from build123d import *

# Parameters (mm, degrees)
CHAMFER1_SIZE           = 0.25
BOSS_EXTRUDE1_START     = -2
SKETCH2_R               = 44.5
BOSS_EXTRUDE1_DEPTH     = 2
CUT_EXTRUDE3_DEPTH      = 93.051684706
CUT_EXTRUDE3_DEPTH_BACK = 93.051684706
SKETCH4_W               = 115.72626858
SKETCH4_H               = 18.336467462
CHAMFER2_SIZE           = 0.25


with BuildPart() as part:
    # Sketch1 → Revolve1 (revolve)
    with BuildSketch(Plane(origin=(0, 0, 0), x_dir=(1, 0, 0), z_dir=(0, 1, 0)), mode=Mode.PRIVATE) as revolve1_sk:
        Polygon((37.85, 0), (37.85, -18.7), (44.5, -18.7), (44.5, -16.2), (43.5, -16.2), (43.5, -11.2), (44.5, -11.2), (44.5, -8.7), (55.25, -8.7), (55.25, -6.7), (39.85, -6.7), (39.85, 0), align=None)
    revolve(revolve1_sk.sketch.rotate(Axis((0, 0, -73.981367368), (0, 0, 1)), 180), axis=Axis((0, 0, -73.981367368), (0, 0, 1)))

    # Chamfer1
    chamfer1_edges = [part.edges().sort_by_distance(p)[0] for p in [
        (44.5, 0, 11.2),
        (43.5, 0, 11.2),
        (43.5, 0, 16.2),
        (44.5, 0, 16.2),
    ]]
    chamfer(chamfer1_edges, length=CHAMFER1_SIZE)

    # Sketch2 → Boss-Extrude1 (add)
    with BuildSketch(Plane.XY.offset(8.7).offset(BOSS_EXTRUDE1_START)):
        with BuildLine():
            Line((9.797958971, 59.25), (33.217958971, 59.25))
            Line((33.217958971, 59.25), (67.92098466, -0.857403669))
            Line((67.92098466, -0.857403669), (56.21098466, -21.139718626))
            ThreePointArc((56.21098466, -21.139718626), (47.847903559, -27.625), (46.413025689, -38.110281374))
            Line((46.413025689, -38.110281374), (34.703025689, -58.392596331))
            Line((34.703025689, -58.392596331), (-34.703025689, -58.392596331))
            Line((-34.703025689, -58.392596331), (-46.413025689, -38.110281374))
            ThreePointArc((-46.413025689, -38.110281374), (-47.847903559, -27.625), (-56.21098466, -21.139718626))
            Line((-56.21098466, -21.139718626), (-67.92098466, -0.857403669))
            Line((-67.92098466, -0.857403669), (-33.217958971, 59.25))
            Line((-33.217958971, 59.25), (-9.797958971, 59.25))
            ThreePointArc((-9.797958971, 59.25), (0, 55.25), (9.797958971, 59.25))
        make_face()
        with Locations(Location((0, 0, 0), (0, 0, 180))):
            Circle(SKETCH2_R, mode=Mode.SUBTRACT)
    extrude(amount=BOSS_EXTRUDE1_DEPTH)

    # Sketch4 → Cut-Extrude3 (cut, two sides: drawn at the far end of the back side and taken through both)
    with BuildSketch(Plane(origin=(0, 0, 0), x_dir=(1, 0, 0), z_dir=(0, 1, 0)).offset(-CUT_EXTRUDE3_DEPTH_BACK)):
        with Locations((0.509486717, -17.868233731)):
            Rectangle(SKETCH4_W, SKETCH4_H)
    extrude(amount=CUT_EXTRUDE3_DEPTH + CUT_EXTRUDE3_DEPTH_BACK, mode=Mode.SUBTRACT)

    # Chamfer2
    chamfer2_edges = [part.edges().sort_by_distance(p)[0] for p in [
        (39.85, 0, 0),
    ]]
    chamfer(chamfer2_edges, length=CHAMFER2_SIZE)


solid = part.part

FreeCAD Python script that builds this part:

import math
import FreeCAD as App
import Part
import Sketcher
from FreeCAD import Vector
Q = App.Units.Quantity


def edges_at(feature, points):
    """Names of the edges that pass closest to the given points."""
    edges = feature.Shape.Edges
    near = lambda p: min(range(len(edges)), key=lambda i: edges[i].distToShape(Part.Vertex(*p))[0])
    return sorted({f"Edge{near(p) + 1}" for p in points})


def add_polygon(sketch, points):
    """Adds a closed chain of lines whose ends are joined by coincident constraints."""
    first, n = sketch.GeometryCount, len(points)
    for a, b in zip(points, points[1:] + points[:1]):
        sketch.addGeometry(Part.LineSegment(App.Vector(*a, 0), App.Vector(*b, 0)), False)
    for i in range(n):
        sketch.addConstraint(Sketcher.Constraint("Coincident", first + i, 2, first + (i + 1) % n, 1))

doc = App.newDocument("Part")
body = doc.addObject("PartDesign::Body", "Body")

sketch1 = body.newObject("Sketcher::SketchObject", "Sketch")
sketch1.AttachmentSupport = (doc.getObject("XZ_Plane"), [""])
sketch1.MapMode = "FlatFace"
add_polygon(sketch1, [(37.85, 0), (37.85, 18.7), (44.5, 18.7), (44.5, 16.2), (43.5, 16.2), (43.5, 11.2), (44.5, 11.2), (44.5, 8.7), (55.25, 8.7), (55.25, 6.7), (39.85, 6.7), (39.85, 0)])
sketch1.addConstraint(Sketcher.Constraint("Vertical", 0))
sketch1.addConstraint(Sketcher.Constraint("Horizontal", 1))
sketch1.addConstraint(Sketcher.Constraint("Vertical", 2))
sketch1.addConstraint(Sketcher.Constraint("Horizontal", 3))
sketch1.addConstraint(Sketcher.Constraint("Vertical", 4))
sketch1.addConstraint(Sketcher.Constraint("Horizontal", 5))
sketch1.addConstraint(Sketcher.Constraint("Vertical", 6))
sketch1.addConstraint(Sketcher.Constraint("Horizontal", 7))
sketch1.addConstraint(Sketcher.Constraint("Vertical", 8))
sketch1.addConstraint(Sketcher.Constraint("Horizontal", 9))
sketch1.addConstraint(Sketcher.Constraint("Vertical", 10))
sketch1.addConstraint(Sketcher.Constraint("Horizontal", 11))
sketch1.addConstraint(Sketcher.Constraint("PointOnObject", 10, 2, -1))
sketch1.addConstraint(Sketcher.Constraint("Vertical", 2, 2, 5, 2))
sketch1.addConstraint(Sketcher.Constraint("Equal", 2, 6))
sketch1.addConstraint(Sketcher.Constraint("Equal", 11, 8))
sketch1.addConstraint(Sketcher.Constraint("DistanceX", 3, 2, 3, 1, Q("1 mm")))
sketch1.addConstraint(Sketcher.Constraint("DistanceX", 11, 2, 11, 1, Q("2 mm")))
sketch1.addConstraint(Sketcher.Constraint("DistanceY", 4, 2, 4, 1, Q("5 mm")))
sketch1.addConstraint(Sketcher.Constraint("DistanceX", 9, 2, 9, 1, Q("15.4 mm")))
sketch1.addConstraint(Sketcher.Constraint("DistanceY", 0, 1, 0, 2, Q("18.7 mm")))
sketch1.addConstraint(Sketcher.Constraint("DistanceY", 2, 2, 2, 1, Q("2.5 mm")))
sketch1.addConstraint(Sketcher.Constraint("DistanceX", 1, 1, 1, 2, Q("6.65 mm")))
sketch1.addConstraint(Sketcher.Constraint("DistanceX", -1, 1, 1, 2, Q("44.5 mm")))
revolution = body.newObject("PartDesign::Revolution", "Revolution")
revolution.Profile = sketch1
revolution.ReferenceAxis = (sketch1, ["V_Axis"])
revolution.Angle = 360
doc.recompute()

chamfer = body.newObject("PartDesign::Chamfer", "Chamfer")
chamfer.Base = (revolution, edges_at(revolution, [
    (44.5, 0, 11.2),
    (43.5, 0, 11.2),
    (43.5, 0, 16.2),
    (44.5, 0, 16.2),
]))
chamfer.Size = 0.25

sketch2 = body.newObject("Sketcher::SketchObject", "Sketch001")
sketch2.AttachmentSupport = (doc.getObject("XY_Plane"), [""])
sketch2.MapMode = "FlatFace"
sketch2.AttachmentOffset = App.Placement(Vector(0, 0, 6.7), App.Rotation())
sketch2.addGeometry(Part.LineSegment(Vector(33.217959, 59.25, 0), Vector(9.797959, 59.25, 0)), False)
sketch2.addGeometry(Part.ArcOfCircle(Part.Circle(Vector(0, 69.25, 0), Vector(0, 0, 1), 14), math.radians(-134.415309), math.radians(-45.584691)), False)
sketch2.addGeometry(Part.LineSegment(Vector(-9.797959, 59.25, 0), Vector(-33.217959, 59.25, 0)), False)
sketch2.addGeometry(Part.LineSegment(Vector(-33.217959, 59.25, 0), Vector(-67.920985, -0.857404, 0)), False)
sketch2.addGeometry(Part.LineSegment(Vector(-67.920985, -0.857404, 0), Vector(-56.210985, -21.139719, 0)), False)
sketch2.addGeometry(Part.ArcOfCircle(Part.Circle(Vector(-59.972259, -34.625, 0), Vector(0, 0, 1), 14), math.radians(-14.415309), math.radians(74.415309)), False)
sketch2.addGeometry(Part.LineSegment(Vector(-46.413026, -38.110281, 0), Vector(-34.703026, -58.392596, 0)), False)
sketch2.addGeometry(Part.LineSegment(Vector(-34.703026, -58.392596, 0), Vector(34.703026, -58.392596, 0)), False)
sketch2.addGeometry(Part.LineSegment(Vector(34.703026, -58.392596, 0), Vector(46.413026, -38.110281, 0)), False)
sketch2.addGeometry(Part.ArcOfCircle(Part.Circle(Vector(59.972259, -34.625, 0), Vector(0, 0, 1), 14), math.radians(105.584691), math.radians(194.415309)), False)
sketch2.addGeometry(Part.LineSegment(Vector(56.210985, -21.139719, 0), Vector(67.920985, -0.857404, 0)), False)
sketch2.addGeometry(Part.LineSegment(Vector(67.920985, -0.857404, 0), Vector(33.217959, 59.25, 0)), False)
sketch2.addGeometry(Part.Circle(Vector(0, 0, 0), Vector(0, 0, 1), 44.5), False)
sketch2.addConstraint(Sketcher.Constraint("Coincident", 0, 2, 1, 2))
sketch2.addConstraint(Sketcher.Constraint("Coincident", 1, 1, 2, 1))
sketch2.addConstraint(Sketcher.Constraint("Coincident", 2, 2, 3, 1))
sketch2.addConstraint(Sketcher.Constraint("Coincident", 3, 2, 4, 1))
sketch2.addConstraint(Sketcher.Constraint("Coincident", 4, 2, 5, 2))
sketch2.addConstraint(Sketcher.Constraint("Coincident", 5, 1, 6, 1))
sketch2.addConstraint(Sketcher.Constraint("Coincident", 6, 2, 7, 1))
sketch2.addConstraint(Sketcher.Constraint("Coincident", 7, 2, 8, 1))
sketch2.addConstraint(Sketcher.Constraint("Coincident", 8, 2, 9, 2))
sketch2.addConstraint(Sketcher.Constraint("Coincident", 9, 1, 10, 1))
sketch2.addConstraint(Sketcher.Constraint("Coincident", 10, 2, 11, 1))
sketch2.addConstraint(Sketcher.Constraint("Coincident", 11, 2, 0, 1))
sketch2.addConstraint(Sketcher.Constraint("Horizontal", 0))
sketch2.addConstraint(Sketcher.Constraint("Horizontal", 2))
sketch2.addConstraint(Sketcher.Constraint("Horizontal", 7))
sketch2.addConstraint(Sketcher.Constraint("Coincident", 12, 3, -1, 1))
sketch2.addConstraint(Sketcher.Constraint("Equal", 1, 5))
sketch2.addConstraint(Sketcher.Constraint("Equal", 5, 9))
sketch2.addConstraint(Sketcher.Constraint("Symmetric", 5, 3, 9, 3, -2))
sketch2.addConstraint(Sketcher.Constraint("Symmetric", 0, 2, 1, 1, -2))
sketch2.addConstraint(Sketcher.Constraint("Symmetric", 3, 2, 10, 2, -2))
sketch2.addConstraint(Sketcher.Constraint("Parallel", 4, 6))
sketch2.addConstraint(Sketcher.Constraint("Parallel", 3, 8))
sketch2.addConstraint(Sketcher.Constraint("Parallel", 8, 10))
sketch2.addConstraint(Sketcher.Constraint("Parallel", 6, 11))
sketch2.addConstraint(Sketcher.Constraint("Horizontal", 5, 1, 8, 2))
sketch2.addConstraint(Sketcher.Constraint("Horizontal", 4, 2, 9, 1))
sketch2.addConstraint(Sketcher.Constraint("Equal", 4, 6))
sketch2.addConstraint(Sketcher.Constraint("Diameter", 12, Q("89 mm")))
sketch2.addConstraint(Sketcher.Constraint("Radius", 1, Q("14 mm")))
sketch2.addConstraint(Sketcher.Constraint("Angle", 3, Q("-120 deg")))
sketch2.addConstraint(Sketcher.Constraint("DistanceY", 0, 2, 1, 3, Q("10 mm")))
sketch2.addConstraint(Sketcher.Constraint("DistanceX", 0, 2, 0, 1, Q("23.42 mm")))
sketch2.addConstraint(Sketcher.Constraint("Distance", 4, Q("23.42 mm")))
sketch2.addConstraint(Sketcher.Constraint("DistanceY", -1, 1, 1, 3, Q("69.25 mm")))
sketch2.addConstraint(Sketcher.Constraint("DistanceY", 5, 3, -1, 1, Q("34.625 mm")))
sketch2.addConstraint(Sketcher.Constraint("DistanceX", 7, 1, 7, 2, Q("69.406051 mm")))
sketch2.addConstraint(Sketcher.Constraint("DistanceX", 0, 2, 9, 3, Q("50.1743 mm")))
pad1 = body.newObject("PartDesign::Pad", "Pad")
pad1.Profile = sketch2
pad1.Length = 2

sketch3 = body.newObject("Sketcher::SketchObject", "Sketch002")
sketch3.AttachmentSupport = (doc.getObject("XZ_Plane"), [""])
sketch3.MapMode = "FlatFace"
add_polygon(sketch3, [(-57.353648, 8.7), (-57.353648, 27.036467), (58.372621, 27.036467), (58.372621, 8.7)])
sketch3.addConstraint(Sketcher.Constraint("Vertical", 0))
sketch3.addConstraint(Sketcher.Constraint("Horizontal", 1))
sketch3.addConstraint(Sketcher.Constraint("Vertical", 2))
sketch3.addConstraint(Sketcher.Constraint("Horizontal", 3))
sketch3.addConstraint(Sketcher.Constraint("DistanceY", -1, 1, 2, 2, Q("8.7 mm")))
sketch3.addConstraint(Sketcher.Constraint("DistanceX", 1, 1, 1, 2, Q("115.726269 mm")))
sketch3.addConstraint(Sketcher.Constraint("DistanceY", 0, 1, 0, 2, Q("18.336467 mm")))
sketch3.addConstraint(Sketcher.Constraint("DistanceX", -1, 1, 1, 2, Q("58.372621 mm")))
pocket1 = body.newObject("PartDesign::Pocket", "Pocket")
pocket1.Profile = sketch3
pocket1.Type = "ThroughAll"
pocket1.Midplane = True
doc.recompute()

chamfer2 = body.newObject("PartDesign::Chamfer", "Chamfer001")
chamfer2.Base = (pocket1, edges_at(pocket1, [(39.85, 0, 0)]))
chamfer2.Size = 0.25

doc.recompute()
